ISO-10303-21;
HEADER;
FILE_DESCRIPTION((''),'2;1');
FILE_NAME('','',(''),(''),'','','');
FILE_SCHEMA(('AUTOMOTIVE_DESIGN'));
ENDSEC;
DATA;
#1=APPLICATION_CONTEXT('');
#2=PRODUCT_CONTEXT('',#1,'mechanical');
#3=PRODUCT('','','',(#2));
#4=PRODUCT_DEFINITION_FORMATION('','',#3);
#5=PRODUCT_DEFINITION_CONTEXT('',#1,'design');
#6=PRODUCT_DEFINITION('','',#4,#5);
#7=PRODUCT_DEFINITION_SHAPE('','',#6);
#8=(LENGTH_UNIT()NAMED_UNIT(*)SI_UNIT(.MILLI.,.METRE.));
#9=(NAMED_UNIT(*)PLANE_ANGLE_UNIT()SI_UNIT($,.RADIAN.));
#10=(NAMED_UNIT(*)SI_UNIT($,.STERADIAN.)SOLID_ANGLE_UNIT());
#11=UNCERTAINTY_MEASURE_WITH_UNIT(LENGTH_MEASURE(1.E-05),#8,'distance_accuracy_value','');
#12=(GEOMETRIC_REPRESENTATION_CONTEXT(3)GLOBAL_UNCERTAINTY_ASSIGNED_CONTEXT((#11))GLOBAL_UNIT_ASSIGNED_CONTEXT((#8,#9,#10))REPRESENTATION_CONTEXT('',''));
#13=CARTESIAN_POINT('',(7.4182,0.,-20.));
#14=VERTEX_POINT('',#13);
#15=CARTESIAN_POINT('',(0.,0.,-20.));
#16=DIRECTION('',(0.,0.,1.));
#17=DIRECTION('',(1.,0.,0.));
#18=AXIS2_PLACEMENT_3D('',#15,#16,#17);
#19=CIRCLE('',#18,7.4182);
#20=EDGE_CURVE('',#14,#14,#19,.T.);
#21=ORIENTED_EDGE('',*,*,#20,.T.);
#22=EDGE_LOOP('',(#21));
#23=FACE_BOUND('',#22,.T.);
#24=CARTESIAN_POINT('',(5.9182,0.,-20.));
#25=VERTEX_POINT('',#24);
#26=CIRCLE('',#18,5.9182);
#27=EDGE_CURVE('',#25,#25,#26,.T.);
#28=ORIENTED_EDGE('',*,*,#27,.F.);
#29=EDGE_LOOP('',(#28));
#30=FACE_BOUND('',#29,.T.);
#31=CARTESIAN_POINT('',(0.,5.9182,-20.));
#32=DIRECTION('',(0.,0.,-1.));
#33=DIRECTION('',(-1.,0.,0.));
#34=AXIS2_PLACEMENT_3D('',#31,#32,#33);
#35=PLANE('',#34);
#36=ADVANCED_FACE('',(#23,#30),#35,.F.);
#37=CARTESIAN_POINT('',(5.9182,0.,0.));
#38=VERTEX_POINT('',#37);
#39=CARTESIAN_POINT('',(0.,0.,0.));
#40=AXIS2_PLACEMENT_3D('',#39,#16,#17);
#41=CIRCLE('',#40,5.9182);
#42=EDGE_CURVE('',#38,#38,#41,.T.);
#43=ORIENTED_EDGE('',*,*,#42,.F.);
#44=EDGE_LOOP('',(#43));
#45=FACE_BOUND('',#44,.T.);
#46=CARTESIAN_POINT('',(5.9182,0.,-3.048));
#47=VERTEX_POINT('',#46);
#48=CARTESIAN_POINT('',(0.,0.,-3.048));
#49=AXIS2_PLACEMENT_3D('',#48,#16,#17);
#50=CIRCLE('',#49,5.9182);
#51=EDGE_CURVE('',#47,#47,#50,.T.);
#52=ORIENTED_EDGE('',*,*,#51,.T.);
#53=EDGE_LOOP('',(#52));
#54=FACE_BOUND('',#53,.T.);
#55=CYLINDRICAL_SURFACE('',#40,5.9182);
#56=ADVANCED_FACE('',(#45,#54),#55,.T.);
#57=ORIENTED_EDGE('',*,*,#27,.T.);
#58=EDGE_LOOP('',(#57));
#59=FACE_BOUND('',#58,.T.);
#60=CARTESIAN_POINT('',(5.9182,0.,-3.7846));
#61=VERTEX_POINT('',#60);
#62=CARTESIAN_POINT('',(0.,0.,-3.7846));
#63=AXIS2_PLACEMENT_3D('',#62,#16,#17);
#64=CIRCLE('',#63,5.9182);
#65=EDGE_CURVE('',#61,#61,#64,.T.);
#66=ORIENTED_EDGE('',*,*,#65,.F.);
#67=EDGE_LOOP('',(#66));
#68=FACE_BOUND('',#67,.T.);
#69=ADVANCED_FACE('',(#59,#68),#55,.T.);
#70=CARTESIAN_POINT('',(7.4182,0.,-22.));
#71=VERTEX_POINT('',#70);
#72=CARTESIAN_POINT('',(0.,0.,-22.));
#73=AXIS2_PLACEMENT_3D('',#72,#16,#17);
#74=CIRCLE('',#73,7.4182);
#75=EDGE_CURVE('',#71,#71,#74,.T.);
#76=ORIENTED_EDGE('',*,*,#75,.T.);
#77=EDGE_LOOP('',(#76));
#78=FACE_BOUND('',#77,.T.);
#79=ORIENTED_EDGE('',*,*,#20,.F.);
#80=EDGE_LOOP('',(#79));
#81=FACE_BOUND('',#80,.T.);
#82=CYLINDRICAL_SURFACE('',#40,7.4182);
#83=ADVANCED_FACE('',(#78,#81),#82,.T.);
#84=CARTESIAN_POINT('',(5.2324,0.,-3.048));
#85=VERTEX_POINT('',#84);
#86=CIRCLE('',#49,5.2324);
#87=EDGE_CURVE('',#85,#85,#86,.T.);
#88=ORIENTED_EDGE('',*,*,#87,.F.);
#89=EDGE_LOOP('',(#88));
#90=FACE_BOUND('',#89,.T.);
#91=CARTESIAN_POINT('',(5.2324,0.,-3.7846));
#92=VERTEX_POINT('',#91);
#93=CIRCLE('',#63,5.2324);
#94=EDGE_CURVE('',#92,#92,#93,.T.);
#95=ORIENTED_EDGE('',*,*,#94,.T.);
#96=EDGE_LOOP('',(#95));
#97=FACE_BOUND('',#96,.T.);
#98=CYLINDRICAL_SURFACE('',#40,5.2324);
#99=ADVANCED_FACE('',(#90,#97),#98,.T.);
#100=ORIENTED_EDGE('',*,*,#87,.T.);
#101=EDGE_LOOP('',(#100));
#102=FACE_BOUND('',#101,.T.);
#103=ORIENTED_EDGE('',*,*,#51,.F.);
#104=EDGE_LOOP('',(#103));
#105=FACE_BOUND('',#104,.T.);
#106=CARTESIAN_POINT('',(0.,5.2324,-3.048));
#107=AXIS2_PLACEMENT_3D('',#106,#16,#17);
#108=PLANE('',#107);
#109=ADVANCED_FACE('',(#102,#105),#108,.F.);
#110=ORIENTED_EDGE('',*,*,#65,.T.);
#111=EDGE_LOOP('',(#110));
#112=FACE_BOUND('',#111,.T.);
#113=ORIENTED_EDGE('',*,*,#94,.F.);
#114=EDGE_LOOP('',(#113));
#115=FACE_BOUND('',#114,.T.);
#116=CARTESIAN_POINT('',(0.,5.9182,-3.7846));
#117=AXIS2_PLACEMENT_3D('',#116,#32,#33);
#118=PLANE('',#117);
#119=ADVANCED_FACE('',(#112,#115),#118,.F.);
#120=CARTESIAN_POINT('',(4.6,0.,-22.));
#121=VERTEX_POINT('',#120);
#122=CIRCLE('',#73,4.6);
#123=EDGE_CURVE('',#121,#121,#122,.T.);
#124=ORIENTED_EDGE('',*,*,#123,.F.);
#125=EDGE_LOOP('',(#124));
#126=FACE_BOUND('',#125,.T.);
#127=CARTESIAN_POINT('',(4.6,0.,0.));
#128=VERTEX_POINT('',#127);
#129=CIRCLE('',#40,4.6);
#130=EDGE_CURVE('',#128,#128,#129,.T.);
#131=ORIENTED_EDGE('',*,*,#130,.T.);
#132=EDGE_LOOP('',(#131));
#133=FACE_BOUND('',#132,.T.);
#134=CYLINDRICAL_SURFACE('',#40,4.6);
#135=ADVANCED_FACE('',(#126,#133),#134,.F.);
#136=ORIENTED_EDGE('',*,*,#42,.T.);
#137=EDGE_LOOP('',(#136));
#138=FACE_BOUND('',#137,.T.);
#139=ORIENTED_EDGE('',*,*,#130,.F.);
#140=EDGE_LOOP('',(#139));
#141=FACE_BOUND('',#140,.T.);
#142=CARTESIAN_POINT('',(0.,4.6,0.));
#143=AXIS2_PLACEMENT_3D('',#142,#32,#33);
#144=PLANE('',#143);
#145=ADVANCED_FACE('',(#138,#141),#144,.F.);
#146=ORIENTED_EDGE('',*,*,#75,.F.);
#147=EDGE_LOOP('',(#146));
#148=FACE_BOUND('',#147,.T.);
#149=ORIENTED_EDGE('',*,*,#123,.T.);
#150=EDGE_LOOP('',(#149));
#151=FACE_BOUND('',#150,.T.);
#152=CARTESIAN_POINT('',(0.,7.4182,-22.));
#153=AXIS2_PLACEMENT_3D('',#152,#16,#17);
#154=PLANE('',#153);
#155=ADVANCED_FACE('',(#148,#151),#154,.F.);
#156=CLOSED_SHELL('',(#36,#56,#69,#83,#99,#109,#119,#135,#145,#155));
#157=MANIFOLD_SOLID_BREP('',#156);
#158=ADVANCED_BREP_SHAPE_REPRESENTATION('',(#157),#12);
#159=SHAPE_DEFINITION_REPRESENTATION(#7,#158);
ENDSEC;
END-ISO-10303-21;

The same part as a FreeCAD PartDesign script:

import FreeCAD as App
import Part
import Sketcher
from FreeCAD import Vector


def add_polygon(sketch, points):
    """Adds a closed chain of lines whose ends are joined by coincident constraints."""
    first, n = sketch.GeometryCount, len(points)
    for a, b in zip(points, points[1:] + points[:1]):
        sketch.addGeometry(Part.LineSegment(App.Vector(*a, 0), App.Vector(*b, 0)), False)
    for i in range(n):
        sketch.addConstraint(Sketcher.Constraint("Coincident", first + i, 2, first + (i + 1) % n, 1))

doc = App.newDocument("Part")
body = doc.addObject("PartDesign::Body", "Body")

sketch1 = body.newObject("Sketcher::SketchObject", "Sketch")
sketch1.AttachmentSupport = (doc.getObject("YZ_Plane"), [""])
sketch1.MapMode = "FlatFace"
add_polygon(sketch1, [(5.9, -3), (5.9, 0), (4.6, 0), (4.6, -22), (7.4, -22), (7.4, -20), (5.9, -20), (5.9, -3.8), (5.2, -3.8), (5.2, -3)])
sketch1.addConstraint(Sketcher.Constraint("Vertical", 0))
sketch1.addConstraint(Sketcher.Constraint("Horizontal", 1))
sketch1.addConstraint(Sketcher.Constraint("Vertical", 2))
sketch1.addConstraint(Sketcher.Constraint("Horizontal", 3))
sketch1.addConstraint(Sketcher.Constraint("Vertical", 4))
sketch1.addConstraint(Sketcher.Constraint("Horizontal", 5))
sketch1.addConstraint(Sketcher.Constraint("Vertical", 6))
sketch1.addConstraint(Sketcher.Constraint("Horizontal", 7))
sketch1.addConstraint(Sketcher.Constraint("Vertical", 8))
sketch1.addConstraint(Sketcher.Constraint("Horizontal", 9))
sketch1.addConstraint(Sketcher.Constraint("PointOnObject", 0, 2, -1))
sketch1.addConstraint(Sketcher.Constraint("Vertical", 0, 2, 5, 2))
sketch1.addConstraint(Sketcher.Constraint("DistanceY", 2, 2, 2, 1, 22.0))
sketch1.addConstraint(Sketcher.Constraint("DistanceY", 4, 1, 4, 2, 2.0))
sketch1.addConstraint(Sketcher.Constraint("DistanceX", 5, 2, 5, 1, 1.5))
sketch1.addConstraint(Sketcher.Constraint("DistanceX", -1, 1, 1, 2, 4.6))
sketch1.addConstraint(Sketcher.Constraint("DistanceY", 0, 1, 0, 2, 3.048))
sketch1.addConstraint(Sketcher.Constraint("DistanceX", 1, 2, 1, 1, 1.3182))
sketch1.addConstraint(Sketcher.Constraint("DistanceX", 7, 2, 7, 1, 0.6858))
sketch1.addConstraint(Sketcher.Constraint("DistanceY", 6, 1, 6, 2, 16.2154))
revolution = body.newObject("PartDesign::Revolution", "Revolution")
revolution.Profile = sketch1
revolution.ReferenceAxis = (sketch1, ["V_Axis"])
revolution.Angle = 360

doc.recompute()
